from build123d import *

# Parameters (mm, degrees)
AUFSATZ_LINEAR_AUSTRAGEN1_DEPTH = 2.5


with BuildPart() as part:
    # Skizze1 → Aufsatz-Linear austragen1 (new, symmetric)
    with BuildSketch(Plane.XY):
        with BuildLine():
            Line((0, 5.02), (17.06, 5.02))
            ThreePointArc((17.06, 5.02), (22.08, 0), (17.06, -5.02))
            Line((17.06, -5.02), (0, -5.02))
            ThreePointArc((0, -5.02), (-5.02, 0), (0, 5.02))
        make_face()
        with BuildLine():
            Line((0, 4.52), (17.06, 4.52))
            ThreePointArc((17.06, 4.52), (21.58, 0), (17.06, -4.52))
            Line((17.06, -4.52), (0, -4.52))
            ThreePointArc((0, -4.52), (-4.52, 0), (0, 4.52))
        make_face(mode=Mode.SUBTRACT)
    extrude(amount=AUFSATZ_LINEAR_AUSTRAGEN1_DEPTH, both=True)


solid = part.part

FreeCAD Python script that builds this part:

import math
import FreeCAD as App
import Part
import Sketcher
from FreeCAD import Vector
Q = App.Units.Quantity

doc = App.newDocument("Part")
body = doc.addObject("PartDesign::Body", "Body")

sketch1 = body.newObject("Sketcher::SketchObject", "Sketch")
sketch1.AttachmentSupport = (doc.getObject("XY_Plane"), [""])
sketch1.MapMode = "FlatFace"
sketch1.addGeometry([
    Part.LineSegment(Vector(17.1, 5, 0), Vector(0, 5, 0)),
    Part.ArcOfCircle(Part.Circle(Vector(0, 0, 0), Vector(0, 0, 1), 5), math.radians(90), math.radians(270)),
    Part.LineSegment(Vector(0, -5, 0), Vector(17.1, -5, 0)),
    Part.ArcOfCircle(Part.Circle(Vector(17.1, 0, 0), Vector(0, 0, 1), 5), math.radians(-90), math.radians(90)),
    Part.LineSegment(Vector(0, 4.5, 0), Vector(17.1, 4.5, 0)),
    Part.ArcOfCircle(Part.Circle(Vector(17.1, 0, 0), Vector(0, 0, 1), 4.5), math.radians(-90), math.radians(90)),
    Part.LineSegment(Vector(17.1, -4.5, 0), Vector(0, -4.5, 0)),
    Part.ArcOfCircle(Part.Circle(Vector(0, 0, 0), Vector(0, 0, 1), 4.5), math.radians(90), math.radians(270)),
], False)
sketch1.addConstraint([
    Sketcher.Constraint("Tangent", 0, 2, 1, 1),
    Sketcher.Constraint("Tangent", 1, 2, 2, 1),
    Sketcher.Constraint("Tangent", 2, 2, 3, 1),
    Sketcher.Constraint("Tangent", 3, 2, 0, 1),
    Sketcher.Constraint("Tangent", 4, 2, 5, 2),
    Sketcher.Constraint("Tangent", 5, 1, 6, 1),
    Sketcher.Constraint("Tangent", 6, 2, 7, 2),
    Sketcher.Constraint("Tangent", 7, 1, 4, 1),
    Sketcher.Constraint("Horizontal", 0),
    Sketcher.Constraint("Horizontal", 2),
    Sketcher.Constraint("Horizontal", 4),
    Sketcher.Constraint("Horizontal", 6),
    Sketcher.Constraint("Coincident", 1, 3, -1, 1),
    Sketcher.Constraint("Coincident", 7, 3, -1, 1),
    Sketcher.Constraint("Vertical", 5, 3, 2, 2),
    Sketcher.Constraint("Radius", 1, Q("5.02 mm")),
    Sketcher.Constraint("Radius", 5, Q("4.52 mm")),
    Sketcher.Constraint("DistanceX", 0, 2, 0, 1, Q("17.06 mm")),
])
pad1 = body.newObject("PartDesign::Pad", "Pad")
pad1.Profile = sketch1
pad1.Length = 5
pad1.Midplane = True

doc.recompute()
